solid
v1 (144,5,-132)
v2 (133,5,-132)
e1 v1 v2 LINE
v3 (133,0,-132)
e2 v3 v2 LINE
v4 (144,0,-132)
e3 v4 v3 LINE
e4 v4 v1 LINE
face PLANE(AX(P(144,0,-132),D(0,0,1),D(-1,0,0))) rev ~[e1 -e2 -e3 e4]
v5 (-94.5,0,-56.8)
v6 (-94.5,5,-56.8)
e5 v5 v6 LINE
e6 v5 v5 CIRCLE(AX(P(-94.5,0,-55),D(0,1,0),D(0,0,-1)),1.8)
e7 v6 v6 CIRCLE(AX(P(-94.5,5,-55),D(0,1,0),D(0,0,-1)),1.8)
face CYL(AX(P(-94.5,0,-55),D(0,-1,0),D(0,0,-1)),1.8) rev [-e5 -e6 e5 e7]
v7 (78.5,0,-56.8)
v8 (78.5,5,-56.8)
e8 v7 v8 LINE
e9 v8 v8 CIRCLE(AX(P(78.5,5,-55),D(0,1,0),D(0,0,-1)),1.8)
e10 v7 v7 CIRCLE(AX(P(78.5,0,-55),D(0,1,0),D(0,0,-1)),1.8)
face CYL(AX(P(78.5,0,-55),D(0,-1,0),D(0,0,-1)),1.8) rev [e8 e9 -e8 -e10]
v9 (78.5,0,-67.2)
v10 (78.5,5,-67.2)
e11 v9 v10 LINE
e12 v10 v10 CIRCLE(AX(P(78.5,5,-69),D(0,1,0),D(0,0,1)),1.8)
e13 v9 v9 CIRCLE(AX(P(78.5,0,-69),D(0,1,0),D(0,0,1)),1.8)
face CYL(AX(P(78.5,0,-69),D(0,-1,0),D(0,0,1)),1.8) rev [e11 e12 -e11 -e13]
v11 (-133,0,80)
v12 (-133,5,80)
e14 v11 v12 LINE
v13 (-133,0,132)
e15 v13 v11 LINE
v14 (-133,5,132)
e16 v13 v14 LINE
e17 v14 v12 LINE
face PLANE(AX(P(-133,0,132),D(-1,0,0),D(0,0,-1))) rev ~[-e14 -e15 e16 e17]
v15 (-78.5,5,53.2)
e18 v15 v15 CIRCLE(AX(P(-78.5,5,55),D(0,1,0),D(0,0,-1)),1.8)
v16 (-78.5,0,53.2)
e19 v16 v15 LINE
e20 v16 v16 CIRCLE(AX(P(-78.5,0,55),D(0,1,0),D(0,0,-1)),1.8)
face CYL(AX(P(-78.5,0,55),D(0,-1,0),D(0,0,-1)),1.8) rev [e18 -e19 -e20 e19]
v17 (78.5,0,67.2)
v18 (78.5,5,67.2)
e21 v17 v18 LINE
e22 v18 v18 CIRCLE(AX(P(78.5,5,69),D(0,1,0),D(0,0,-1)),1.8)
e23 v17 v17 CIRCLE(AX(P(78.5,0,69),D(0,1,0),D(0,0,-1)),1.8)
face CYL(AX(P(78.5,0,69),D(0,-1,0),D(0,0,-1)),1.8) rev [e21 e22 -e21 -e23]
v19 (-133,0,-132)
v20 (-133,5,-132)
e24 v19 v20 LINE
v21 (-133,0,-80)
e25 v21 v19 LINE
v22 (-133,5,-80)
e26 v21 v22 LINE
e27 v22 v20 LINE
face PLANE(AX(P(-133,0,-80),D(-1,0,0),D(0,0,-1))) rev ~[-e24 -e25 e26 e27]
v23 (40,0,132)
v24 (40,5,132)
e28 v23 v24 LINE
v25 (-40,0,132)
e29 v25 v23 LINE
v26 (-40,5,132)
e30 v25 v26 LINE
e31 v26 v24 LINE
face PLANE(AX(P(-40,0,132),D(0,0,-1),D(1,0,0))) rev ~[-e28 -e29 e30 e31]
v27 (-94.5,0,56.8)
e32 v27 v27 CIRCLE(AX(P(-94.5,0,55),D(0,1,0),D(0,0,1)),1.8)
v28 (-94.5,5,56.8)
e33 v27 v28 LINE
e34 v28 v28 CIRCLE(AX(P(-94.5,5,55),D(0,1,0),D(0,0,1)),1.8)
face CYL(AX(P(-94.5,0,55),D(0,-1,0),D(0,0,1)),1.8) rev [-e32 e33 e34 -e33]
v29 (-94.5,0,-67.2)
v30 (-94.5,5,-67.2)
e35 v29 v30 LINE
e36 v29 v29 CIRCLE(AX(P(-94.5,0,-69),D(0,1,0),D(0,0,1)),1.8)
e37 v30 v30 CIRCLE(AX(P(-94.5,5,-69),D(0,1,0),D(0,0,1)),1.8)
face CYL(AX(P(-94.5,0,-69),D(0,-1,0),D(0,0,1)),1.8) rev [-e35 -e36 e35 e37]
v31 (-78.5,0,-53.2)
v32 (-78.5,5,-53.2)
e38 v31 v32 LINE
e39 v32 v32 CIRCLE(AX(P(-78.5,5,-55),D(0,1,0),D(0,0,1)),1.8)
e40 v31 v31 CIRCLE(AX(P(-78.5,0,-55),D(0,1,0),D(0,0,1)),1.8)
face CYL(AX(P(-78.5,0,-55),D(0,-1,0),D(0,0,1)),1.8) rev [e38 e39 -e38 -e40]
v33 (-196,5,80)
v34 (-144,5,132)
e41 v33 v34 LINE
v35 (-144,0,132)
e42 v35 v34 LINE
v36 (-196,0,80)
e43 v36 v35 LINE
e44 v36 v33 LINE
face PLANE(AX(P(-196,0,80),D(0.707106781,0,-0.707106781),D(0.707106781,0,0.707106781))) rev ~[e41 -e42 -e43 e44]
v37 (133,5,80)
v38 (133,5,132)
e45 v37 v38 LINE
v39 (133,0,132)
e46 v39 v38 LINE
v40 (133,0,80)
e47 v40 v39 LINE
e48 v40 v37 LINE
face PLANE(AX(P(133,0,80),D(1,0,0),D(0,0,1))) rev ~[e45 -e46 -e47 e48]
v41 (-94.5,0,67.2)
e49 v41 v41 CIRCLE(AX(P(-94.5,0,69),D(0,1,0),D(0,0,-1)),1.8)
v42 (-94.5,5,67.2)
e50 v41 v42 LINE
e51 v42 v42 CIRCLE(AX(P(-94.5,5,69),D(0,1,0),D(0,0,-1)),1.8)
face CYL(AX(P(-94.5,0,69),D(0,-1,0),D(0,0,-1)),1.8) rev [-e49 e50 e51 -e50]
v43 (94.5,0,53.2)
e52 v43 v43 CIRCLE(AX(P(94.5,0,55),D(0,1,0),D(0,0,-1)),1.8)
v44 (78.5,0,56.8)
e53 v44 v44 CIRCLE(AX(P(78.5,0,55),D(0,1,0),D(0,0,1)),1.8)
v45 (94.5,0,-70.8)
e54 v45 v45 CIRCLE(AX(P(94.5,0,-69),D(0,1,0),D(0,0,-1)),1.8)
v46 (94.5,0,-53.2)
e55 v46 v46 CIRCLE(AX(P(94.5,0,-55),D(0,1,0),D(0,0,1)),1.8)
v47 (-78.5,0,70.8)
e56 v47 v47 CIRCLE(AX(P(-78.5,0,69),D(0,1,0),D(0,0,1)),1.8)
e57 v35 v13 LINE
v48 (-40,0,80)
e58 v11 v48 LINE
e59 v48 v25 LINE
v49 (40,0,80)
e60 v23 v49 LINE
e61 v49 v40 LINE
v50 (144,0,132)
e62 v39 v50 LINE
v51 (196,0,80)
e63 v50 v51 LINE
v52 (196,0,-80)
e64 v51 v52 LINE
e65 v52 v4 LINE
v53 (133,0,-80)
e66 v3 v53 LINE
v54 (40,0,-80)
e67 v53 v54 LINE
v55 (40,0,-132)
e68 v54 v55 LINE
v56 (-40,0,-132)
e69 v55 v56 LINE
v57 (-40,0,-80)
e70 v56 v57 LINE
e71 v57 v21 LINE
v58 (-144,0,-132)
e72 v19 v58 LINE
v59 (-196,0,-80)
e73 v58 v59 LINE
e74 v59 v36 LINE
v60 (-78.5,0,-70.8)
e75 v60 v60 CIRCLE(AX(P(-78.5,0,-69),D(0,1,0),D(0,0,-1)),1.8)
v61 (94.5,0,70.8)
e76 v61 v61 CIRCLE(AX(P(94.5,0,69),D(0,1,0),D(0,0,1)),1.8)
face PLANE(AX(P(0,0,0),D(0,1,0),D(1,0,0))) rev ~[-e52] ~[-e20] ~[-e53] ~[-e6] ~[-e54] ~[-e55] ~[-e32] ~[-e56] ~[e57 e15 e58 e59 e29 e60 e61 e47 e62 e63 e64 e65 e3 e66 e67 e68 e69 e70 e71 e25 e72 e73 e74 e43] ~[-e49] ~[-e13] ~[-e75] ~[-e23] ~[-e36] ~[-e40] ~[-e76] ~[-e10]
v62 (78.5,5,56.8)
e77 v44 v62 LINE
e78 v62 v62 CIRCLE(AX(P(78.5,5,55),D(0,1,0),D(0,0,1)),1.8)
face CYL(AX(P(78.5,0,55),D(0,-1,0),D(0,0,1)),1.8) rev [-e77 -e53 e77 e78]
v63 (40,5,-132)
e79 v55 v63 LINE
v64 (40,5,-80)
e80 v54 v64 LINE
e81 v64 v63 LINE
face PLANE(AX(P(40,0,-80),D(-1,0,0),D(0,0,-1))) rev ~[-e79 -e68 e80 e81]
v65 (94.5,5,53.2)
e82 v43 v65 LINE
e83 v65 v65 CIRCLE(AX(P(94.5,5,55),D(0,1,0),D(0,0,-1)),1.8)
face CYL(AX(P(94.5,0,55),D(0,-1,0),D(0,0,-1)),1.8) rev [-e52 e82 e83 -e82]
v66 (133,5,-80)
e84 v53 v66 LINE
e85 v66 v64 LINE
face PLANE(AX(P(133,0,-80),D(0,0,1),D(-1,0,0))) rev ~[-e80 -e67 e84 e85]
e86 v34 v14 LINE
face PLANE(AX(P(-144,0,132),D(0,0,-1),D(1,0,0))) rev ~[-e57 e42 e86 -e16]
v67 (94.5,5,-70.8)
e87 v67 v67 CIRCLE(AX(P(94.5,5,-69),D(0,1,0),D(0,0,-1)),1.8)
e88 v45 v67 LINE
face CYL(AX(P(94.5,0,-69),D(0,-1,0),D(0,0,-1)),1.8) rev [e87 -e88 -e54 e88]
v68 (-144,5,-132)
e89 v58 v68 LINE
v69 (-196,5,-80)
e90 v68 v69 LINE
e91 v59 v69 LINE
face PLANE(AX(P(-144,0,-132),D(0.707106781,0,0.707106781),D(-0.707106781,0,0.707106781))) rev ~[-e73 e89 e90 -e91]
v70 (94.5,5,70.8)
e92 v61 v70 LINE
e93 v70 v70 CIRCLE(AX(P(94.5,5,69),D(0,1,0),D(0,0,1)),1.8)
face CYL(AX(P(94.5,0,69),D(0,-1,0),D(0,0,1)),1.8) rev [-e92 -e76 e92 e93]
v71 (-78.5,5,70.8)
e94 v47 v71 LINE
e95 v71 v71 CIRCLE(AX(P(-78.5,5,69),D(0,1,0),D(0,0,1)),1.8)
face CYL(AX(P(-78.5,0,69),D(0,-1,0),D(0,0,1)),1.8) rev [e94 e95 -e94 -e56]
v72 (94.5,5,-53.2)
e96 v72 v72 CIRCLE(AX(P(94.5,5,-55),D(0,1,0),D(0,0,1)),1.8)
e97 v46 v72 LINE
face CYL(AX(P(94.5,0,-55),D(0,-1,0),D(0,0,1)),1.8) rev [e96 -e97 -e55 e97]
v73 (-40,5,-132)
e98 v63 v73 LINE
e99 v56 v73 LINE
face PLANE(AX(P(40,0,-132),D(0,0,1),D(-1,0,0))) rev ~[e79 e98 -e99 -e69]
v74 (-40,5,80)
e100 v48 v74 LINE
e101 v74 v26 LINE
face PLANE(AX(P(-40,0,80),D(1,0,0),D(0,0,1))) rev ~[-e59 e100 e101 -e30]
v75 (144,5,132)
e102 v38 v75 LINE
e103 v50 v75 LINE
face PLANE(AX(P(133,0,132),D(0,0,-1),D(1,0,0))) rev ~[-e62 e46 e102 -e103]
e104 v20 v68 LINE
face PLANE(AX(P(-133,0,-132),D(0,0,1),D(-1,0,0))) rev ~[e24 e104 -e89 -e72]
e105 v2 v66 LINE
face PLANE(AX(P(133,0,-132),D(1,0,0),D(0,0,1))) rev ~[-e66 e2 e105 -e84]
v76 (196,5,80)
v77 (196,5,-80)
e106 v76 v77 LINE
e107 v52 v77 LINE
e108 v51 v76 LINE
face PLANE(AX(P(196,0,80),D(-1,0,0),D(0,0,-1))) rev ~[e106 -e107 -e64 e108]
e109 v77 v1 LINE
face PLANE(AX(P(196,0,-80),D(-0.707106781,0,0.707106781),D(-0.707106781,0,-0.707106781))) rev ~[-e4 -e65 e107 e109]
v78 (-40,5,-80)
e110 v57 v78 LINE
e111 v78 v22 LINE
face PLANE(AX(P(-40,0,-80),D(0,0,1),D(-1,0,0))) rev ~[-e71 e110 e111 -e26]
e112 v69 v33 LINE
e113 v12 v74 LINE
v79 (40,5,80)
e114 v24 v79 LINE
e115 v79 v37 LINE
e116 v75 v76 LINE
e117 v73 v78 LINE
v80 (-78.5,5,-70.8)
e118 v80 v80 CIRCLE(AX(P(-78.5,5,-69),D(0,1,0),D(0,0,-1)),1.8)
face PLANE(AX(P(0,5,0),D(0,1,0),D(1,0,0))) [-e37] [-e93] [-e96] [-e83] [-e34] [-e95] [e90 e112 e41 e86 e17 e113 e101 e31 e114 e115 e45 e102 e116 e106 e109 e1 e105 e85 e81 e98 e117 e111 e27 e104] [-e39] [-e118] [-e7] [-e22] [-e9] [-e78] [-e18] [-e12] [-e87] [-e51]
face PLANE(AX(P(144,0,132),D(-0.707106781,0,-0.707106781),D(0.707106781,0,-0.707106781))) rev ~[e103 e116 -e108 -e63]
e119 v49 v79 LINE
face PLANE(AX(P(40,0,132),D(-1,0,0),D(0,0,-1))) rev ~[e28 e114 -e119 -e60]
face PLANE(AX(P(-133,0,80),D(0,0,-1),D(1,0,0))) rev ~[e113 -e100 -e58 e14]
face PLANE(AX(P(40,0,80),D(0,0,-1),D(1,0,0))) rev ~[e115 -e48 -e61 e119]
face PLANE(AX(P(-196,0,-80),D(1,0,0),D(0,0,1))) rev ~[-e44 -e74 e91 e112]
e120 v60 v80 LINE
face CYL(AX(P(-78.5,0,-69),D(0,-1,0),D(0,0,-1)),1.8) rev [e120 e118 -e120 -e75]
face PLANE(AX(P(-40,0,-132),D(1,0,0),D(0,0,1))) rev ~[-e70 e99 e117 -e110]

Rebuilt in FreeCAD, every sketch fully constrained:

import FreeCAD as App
import Part
import Sketcher

V = App.Vector

doc = App.newDocument("Part")
params = doc.addObject("Spreadsheet::Sheet", "Params")
for row, (alias, value) in enumerate([
    ("sketch1_diameter", "3.6 mm"),
    ("sketch1_width", "11 mm"),
    ("sketch1_width2", "93 mm"),
    ("sketch1_width3", "80 mm"),
    ("sketch1_height", "160 mm"),
    ("pad1_length", "5 mm"),
], start=1):
    params.set(f"A{row}", alias)
    params.set(f"B{row}", "=" + value)
    params.setAlias(f"B{row}", alias)

body = doc.addObject("PartDesign::Body", "Body")

# Sketch on XZ plane
sketch1 = body.newObject("Sketcher::SketchObject", "Sketch")
sketch1.AttachmentSupport = (doc.getObject("XZ_Plane"), [""])
sketch1.MapMode = "FlatFace"
sketch1.addGeometry([
    Part.LineSegment(V(196, 80, 0), V(196, -80, 0)),  # 0
    Part.LineSegment(V(196, -80, 0), V(144, -132, 0)),  # 1
    Part.LineSegment(V(144, -132, 0), V(133, -132, 0)),  # 2
    Part.LineSegment(V(133, -132, 0), V(133, -80, 0)),  # 3
    Part.LineSegment(V(133, -80, 0), V(40, -80, 0)),  # 4
    Part.LineSegment(V(40, -80, 0), V(40, -132, 0)),  # 5
    Part.LineSegment(V(40, -132, 0), V(-40, -132, 0)),  # 6
    Part.LineSegment(V(-40, -132, 0), V(-40, -80, 0)),  # 7
    Part.LineSegment(V(-40, -80, 0), V(-133, -80, 0)),  # 8
    Part.LineSegment(V(-133, -80, 0), V(-133, -132, 0)),  # 9
    Part.LineSegment(V(-133, -132, 0), V(-144, -132, 0)),  # 10
    Part.LineSegment(V(-144, -132, 0), V(-196, -80, 0)),  # 11
    Part.LineSegment(V(-196, -80, 0), V(-196, 80, 0)),  # 12
    Part.LineSegment(V(-196, 80, 0), V(-144, 132, 0)),  # 13
    Part.LineSegment(V(-144, 132, 0), V(-133, 132, 0)),  # 14
    Part.LineSegment(V(-133, 132, 0), V(-133, 80, 0)),  # 15
    Part.LineSegment(V(-133, 80, 0), V(-40, 80, 0)),  # 16
    Part.LineSegment(V(-40, 80, 0), V(-40, 132, 0)),  # 17
    Part.LineSegment(V(-40, 132, 0), V(40, 132, 0)),  # 18
    Part.LineSegment(V(40, 132, 0), V(40, 80, 0)),  # 19
    Part.LineSegment(V(40, 80, 0), V(133, 80, 0)),  # 20
    Part.LineSegment(V(133, 80, 0), V(133, 132, 0)),  # 21
    Part.LineSegment(V(133, 132, 0), V(144, 132, 0)),  # 22
    Part.LineSegment(V(144, 132, 0), V(196, 80, 0)),  # 23
    Part.Circle(V(-94.5, 69, 0), V(0, 0, 1), 1.8),  # 24
    Part.Circle(V(-78.5, 69, 0), V(0, 0, 1), 1.8),  # 25
    Part.Circle(V(-94.5, 55, 0), V(0, 0, 1), 1.8),  # 26
    Part.Circle(V(-78.5, 55, 0), V(0, 0, 1), 1.8),  # 27
    Part.Circle(V(78.5, 69, 0), V(0, 0, 1), 1.8),  # 28
    Part.Circle(V(94.5, 69, 0), V(0, 0, 1), 1.8),  # 29
    Part.Circle(V(78.5, 55, 0), V(0, 0, 1), 1.8),  # 30
    Part.Circle(V(94.5, 55, 0), V(0, 0, 1), 1.8),  # 31
    Part.Circle(V(-94.5, -55, 0), V(0, 0, 1), 1.8),  # 32
    Part.Circle(V(-78.5, -55, 0), V(0, 0, 1), 1.8),  # 33
    Part.Circle(V(-94.5, -69, 0), V(0, 0, 1), 1.8),  # 34
    Part.Circle(V(-78.5, -69, 0), V(0, 0, 1), 1.8),  # 35
    Part.Circle(V(78.5, -55, 0), V(0, 0, 1), 1.8),  # 36
    Part.Circle(V(94.5, -55, 0), V(0, 0, 1), 1.8),  # 37
    Part.Circle(V(78.5, -69, 0), V(0, 0, 1), 1.8),  # 38
    Part.Circle(V(94.5, -69, 0), V(0, 0, 1), 1.8),  # 39
], False)
sketch1.addConstraint([
    Sketcher.Constraint("Coincident", 0, 2, 1, 1),
    Sketcher.Constraint("Coincident", 1, 2, 2, 1),
    Sketcher.Constraint("Coincident", 2, 2, 3, 1),
    Sketcher.Constraint("Coincident", 3, 2, 4, 1),
    Sketcher.Constraint("Coincident", 4, 2, 5, 1),
    Sketcher.Constraint("Coincident", 5, 2, 6, 1),
    Sketcher.Constraint("Coincident", 6, 2, 7, 1),
    Sketcher.Constraint("Coincident", 7, 2, 8, 1),
    Sketcher.Constraint("Coincident", 8, 2, 9, 1),
    Sketcher.Constraint("Coincident", 9, 2, 10, 1),
    Sketcher.Constraint("Coincident", 10, 2, 11, 1),
    Sketcher.Constraint("Coincident", 11, 2, 12, 1),
    Sketcher.Constraint("Coincident", 12, 2, 13, 1),
    Sketcher.Constraint("Coincident", 13, 2, 14, 1),
    Sketcher.Constraint("Coincident", 14, 2, 15, 1),
    Sketcher.Constraint("Coincident", 15, 2, 16, 1),
    Sketcher.Constraint("Coincident", 16, 2, 17, 1),
    Sketcher.Constraint("Coincident", 17, 2, 18, 1),
    Sketcher.Constraint("Coincident", 18, 2, 19, 1),
    Sketcher.Constraint("Coincident", 19, 2, 20, 1),
    Sketcher.Constraint("Coincident", 20, 2, 21, 1),
    Sketcher.Constraint("Coincident", 21, 2, 22, 1),
    Sketcher.Constraint("Coincident", 22, 2, 23, 1),
    Sketcher.Constraint("Coincident", 23, 2, 0, 1),
    Sketcher.Constraint("Vertical", 0),
    Sketcher.Constraint("Horizontal", 2),
    Sketcher.Constraint("Vertical", 3),
    Sketcher.Constraint("Horizontal", 4),
    Sketcher.Constraint("Vertical", 5),
    Sketcher.Constraint("Horizontal", 6),
    Sketcher.Constraint("Vertical", 7),
    Sketcher.Constraint("Horizontal", 8),
    Sketcher.Constraint("Vertical", 9),
    Sketcher.Constraint("Horizontal", 10),
    Sketcher.Constraint("Vertical", 12),
    Sketcher.Constraint("Horizontal", 14),
    Sketcher.Constraint("Vertical", 15),
    Sketcher.Constraint("Horizontal", 16),
    Sketcher.Constraint("Vertical", 17),
    Sketcher.Constraint("Horizontal", 18),
    Sketcher.Constraint("Vertical", 19),
    Sketcher.Constraint("Horizontal", 20),
    Sketcher.Constraint("Vertical", 21),
    Sketcher.Constraint("Horizontal", 22),
    Sketcher.Constraint("Equal", 24, 25),
    Sketcher.Constraint("Equal", 25, 26),
    Sketcher.Constraint("Equal", 26, 27),
    Sketcher.Constraint("Equal", 27, 28),
    Sketcher.Constraint("Equal", 28, 29),
    Sketcher.Constraint("Equal", 29, 30),
    Sketcher.Constraint("Equal", 30, 31),
    Sketcher.Constraint("Equal", 31, 32),
    Sketcher.Constraint("Equal", 32, 33),
    Sketcher.Constraint("Equal", 33, 34),
    Sketcher.Constraint("Equal", 34, 35),
    Sketcher.Constraint("Equal", 35, 36),
    Sketcher.Constraint("Equal", 36, 37),
    Sketcher.Constraint("Equal", 37, 38),
    Sketcher.Constraint("Equal", 38, 39),
    Sketcher.Constraint("Symmetric", 31, 3, 32, 3, -1, 1),
    Sketcher.Constraint("Symmetric", 30, 3, 33, 3, -1, 1),
    Sketcher.Constraint("Symmetric", 29, 3, 34, 3, -1, 1),
    Sketcher.Constraint("Symmetric", 28, 3, 35, 3, -1, 1),
    Sketcher.Constraint("Symmetric", 27, 3, 36, 3, -1, 1),
    Sketcher.Constraint("Symmetric", 26, 3, 37, 3, -1, 1),
    Sketcher.Constraint("Symmetric", 25, 3, 38, 3, -1, 1),
    Sketcher.Constraint("Symmetric", 24, 3, 39, 3, -1, 1),
    Sketcher.Constraint("Symmetric", 0, 2, 12, 2, -1, 1),
    Sketcher.Constraint("Symmetric", 1, 2, 13, 2, -1, 1),
    Sketcher.Constraint("Symmetric", 3, 2, 15, 2, -1, 1),
    Sketcher.Constraint("Symmetric", 5, 2, 17, 2, -1, 1),
    Sketcher.Constraint("Symmetric", 7, 2, 19, 2, -1, 1),
    Sketcher.Constraint("Symmetric", 9, 2, 21, 2, -1, 1),
    Sketcher.Constraint("Symmetric", 25, 3, 28, 3, -2),
    Sketcher.Constraint("Symmetric", 24, 3, 29, 3, -2),
    Sketcher.Constraint("Symmetric", 27, 3, 30, 3, -2),
    Sketcher.Constraint("Symmetric", 26, 3, 31, 3, -2),
    Sketcher.Constraint("Symmetric", 4, 2, 7, 2, -2),
    Sketcher.Constraint("Symmetric", 2, 2, 9, 2, -2),
    Sketcher.Constraint("Perpendicular", 1, 11),
    Sketcher.Constraint("Perpendicular", 13, 23),
    Sketcher.Constraint("Horizontal", 24, 3, 25, 3),
    Sketcher.Constraint("Horizontal", 26, 3, 27, 3),
    Sketcher.Constraint("Horizontal", 0, 2, 3, 2),
    Sketcher.Constraint("Horizontal", 2, 2, 5, 2),
    Sketcher.Constraint("Horizontal", 8, 2, 11, 2),
    Sketcher.Constraint("Horizontal", 20, 2, 23, 2),
    Sketcher.Constraint("Vertical", 24, 3, 26, 3),
    Sketcher.Constraint("Vertical", 25, 3, 27, 3),
    Sketcher.Constraint("Vertical", 10, 2, 13, 2),
    Sketcher.Constraint("Diameter", 24, 3.6),
    Sketcher.Constraint("DistanceX", 2, 2, 2, 1, 11.0),
    Sketcher.Constraint("DistanceX", 4, 2, 4, 1, 93.0),
    Sketcher.Constraint("DistanceX", 6, 2, 6, 1, 80.0),
    Sketcher.Constraint("DistanceY", 0, 2, 0, 1, 160.0),
    Sketcher.Constraint("DistanceY", 3, 1, 3, 2, 52.0),
    Sketcher.Constraint("DistanceY", -1, 1, 24, 3, 69.0),
    Sketcher.Constraint("DistanceY", -1, 1, 26, 3, 55.0),
    Sketcher.Constraint("DistanceX", 24, 3, 25, 3, 16.0),
    Sketcher.Constraint("DistanceX", 25, 3, 28, 3, 157.0),
])
sketch1.setExpression("Constraints[90]", "Params.sketch1_diameter")
sketch1.setExpression("Constraints[91]", "Params.sketch1_width")
sketch1.setExpression("Constraints[92]", "Params.sketch1_width2")
sketch1.setExpression("Constraints[93]", "Params.sketch1_width3")
sketch1.setExpression("Constraints[94]", "Params.sketch1_height")
pad1 = body.newObject("PartDesign::Pad", "Pad")
pad1.Profile = sketch1
pad1.setExpression("Length", "Params.pad1_length")
pad1.Reversed = True

doc.recompute()
